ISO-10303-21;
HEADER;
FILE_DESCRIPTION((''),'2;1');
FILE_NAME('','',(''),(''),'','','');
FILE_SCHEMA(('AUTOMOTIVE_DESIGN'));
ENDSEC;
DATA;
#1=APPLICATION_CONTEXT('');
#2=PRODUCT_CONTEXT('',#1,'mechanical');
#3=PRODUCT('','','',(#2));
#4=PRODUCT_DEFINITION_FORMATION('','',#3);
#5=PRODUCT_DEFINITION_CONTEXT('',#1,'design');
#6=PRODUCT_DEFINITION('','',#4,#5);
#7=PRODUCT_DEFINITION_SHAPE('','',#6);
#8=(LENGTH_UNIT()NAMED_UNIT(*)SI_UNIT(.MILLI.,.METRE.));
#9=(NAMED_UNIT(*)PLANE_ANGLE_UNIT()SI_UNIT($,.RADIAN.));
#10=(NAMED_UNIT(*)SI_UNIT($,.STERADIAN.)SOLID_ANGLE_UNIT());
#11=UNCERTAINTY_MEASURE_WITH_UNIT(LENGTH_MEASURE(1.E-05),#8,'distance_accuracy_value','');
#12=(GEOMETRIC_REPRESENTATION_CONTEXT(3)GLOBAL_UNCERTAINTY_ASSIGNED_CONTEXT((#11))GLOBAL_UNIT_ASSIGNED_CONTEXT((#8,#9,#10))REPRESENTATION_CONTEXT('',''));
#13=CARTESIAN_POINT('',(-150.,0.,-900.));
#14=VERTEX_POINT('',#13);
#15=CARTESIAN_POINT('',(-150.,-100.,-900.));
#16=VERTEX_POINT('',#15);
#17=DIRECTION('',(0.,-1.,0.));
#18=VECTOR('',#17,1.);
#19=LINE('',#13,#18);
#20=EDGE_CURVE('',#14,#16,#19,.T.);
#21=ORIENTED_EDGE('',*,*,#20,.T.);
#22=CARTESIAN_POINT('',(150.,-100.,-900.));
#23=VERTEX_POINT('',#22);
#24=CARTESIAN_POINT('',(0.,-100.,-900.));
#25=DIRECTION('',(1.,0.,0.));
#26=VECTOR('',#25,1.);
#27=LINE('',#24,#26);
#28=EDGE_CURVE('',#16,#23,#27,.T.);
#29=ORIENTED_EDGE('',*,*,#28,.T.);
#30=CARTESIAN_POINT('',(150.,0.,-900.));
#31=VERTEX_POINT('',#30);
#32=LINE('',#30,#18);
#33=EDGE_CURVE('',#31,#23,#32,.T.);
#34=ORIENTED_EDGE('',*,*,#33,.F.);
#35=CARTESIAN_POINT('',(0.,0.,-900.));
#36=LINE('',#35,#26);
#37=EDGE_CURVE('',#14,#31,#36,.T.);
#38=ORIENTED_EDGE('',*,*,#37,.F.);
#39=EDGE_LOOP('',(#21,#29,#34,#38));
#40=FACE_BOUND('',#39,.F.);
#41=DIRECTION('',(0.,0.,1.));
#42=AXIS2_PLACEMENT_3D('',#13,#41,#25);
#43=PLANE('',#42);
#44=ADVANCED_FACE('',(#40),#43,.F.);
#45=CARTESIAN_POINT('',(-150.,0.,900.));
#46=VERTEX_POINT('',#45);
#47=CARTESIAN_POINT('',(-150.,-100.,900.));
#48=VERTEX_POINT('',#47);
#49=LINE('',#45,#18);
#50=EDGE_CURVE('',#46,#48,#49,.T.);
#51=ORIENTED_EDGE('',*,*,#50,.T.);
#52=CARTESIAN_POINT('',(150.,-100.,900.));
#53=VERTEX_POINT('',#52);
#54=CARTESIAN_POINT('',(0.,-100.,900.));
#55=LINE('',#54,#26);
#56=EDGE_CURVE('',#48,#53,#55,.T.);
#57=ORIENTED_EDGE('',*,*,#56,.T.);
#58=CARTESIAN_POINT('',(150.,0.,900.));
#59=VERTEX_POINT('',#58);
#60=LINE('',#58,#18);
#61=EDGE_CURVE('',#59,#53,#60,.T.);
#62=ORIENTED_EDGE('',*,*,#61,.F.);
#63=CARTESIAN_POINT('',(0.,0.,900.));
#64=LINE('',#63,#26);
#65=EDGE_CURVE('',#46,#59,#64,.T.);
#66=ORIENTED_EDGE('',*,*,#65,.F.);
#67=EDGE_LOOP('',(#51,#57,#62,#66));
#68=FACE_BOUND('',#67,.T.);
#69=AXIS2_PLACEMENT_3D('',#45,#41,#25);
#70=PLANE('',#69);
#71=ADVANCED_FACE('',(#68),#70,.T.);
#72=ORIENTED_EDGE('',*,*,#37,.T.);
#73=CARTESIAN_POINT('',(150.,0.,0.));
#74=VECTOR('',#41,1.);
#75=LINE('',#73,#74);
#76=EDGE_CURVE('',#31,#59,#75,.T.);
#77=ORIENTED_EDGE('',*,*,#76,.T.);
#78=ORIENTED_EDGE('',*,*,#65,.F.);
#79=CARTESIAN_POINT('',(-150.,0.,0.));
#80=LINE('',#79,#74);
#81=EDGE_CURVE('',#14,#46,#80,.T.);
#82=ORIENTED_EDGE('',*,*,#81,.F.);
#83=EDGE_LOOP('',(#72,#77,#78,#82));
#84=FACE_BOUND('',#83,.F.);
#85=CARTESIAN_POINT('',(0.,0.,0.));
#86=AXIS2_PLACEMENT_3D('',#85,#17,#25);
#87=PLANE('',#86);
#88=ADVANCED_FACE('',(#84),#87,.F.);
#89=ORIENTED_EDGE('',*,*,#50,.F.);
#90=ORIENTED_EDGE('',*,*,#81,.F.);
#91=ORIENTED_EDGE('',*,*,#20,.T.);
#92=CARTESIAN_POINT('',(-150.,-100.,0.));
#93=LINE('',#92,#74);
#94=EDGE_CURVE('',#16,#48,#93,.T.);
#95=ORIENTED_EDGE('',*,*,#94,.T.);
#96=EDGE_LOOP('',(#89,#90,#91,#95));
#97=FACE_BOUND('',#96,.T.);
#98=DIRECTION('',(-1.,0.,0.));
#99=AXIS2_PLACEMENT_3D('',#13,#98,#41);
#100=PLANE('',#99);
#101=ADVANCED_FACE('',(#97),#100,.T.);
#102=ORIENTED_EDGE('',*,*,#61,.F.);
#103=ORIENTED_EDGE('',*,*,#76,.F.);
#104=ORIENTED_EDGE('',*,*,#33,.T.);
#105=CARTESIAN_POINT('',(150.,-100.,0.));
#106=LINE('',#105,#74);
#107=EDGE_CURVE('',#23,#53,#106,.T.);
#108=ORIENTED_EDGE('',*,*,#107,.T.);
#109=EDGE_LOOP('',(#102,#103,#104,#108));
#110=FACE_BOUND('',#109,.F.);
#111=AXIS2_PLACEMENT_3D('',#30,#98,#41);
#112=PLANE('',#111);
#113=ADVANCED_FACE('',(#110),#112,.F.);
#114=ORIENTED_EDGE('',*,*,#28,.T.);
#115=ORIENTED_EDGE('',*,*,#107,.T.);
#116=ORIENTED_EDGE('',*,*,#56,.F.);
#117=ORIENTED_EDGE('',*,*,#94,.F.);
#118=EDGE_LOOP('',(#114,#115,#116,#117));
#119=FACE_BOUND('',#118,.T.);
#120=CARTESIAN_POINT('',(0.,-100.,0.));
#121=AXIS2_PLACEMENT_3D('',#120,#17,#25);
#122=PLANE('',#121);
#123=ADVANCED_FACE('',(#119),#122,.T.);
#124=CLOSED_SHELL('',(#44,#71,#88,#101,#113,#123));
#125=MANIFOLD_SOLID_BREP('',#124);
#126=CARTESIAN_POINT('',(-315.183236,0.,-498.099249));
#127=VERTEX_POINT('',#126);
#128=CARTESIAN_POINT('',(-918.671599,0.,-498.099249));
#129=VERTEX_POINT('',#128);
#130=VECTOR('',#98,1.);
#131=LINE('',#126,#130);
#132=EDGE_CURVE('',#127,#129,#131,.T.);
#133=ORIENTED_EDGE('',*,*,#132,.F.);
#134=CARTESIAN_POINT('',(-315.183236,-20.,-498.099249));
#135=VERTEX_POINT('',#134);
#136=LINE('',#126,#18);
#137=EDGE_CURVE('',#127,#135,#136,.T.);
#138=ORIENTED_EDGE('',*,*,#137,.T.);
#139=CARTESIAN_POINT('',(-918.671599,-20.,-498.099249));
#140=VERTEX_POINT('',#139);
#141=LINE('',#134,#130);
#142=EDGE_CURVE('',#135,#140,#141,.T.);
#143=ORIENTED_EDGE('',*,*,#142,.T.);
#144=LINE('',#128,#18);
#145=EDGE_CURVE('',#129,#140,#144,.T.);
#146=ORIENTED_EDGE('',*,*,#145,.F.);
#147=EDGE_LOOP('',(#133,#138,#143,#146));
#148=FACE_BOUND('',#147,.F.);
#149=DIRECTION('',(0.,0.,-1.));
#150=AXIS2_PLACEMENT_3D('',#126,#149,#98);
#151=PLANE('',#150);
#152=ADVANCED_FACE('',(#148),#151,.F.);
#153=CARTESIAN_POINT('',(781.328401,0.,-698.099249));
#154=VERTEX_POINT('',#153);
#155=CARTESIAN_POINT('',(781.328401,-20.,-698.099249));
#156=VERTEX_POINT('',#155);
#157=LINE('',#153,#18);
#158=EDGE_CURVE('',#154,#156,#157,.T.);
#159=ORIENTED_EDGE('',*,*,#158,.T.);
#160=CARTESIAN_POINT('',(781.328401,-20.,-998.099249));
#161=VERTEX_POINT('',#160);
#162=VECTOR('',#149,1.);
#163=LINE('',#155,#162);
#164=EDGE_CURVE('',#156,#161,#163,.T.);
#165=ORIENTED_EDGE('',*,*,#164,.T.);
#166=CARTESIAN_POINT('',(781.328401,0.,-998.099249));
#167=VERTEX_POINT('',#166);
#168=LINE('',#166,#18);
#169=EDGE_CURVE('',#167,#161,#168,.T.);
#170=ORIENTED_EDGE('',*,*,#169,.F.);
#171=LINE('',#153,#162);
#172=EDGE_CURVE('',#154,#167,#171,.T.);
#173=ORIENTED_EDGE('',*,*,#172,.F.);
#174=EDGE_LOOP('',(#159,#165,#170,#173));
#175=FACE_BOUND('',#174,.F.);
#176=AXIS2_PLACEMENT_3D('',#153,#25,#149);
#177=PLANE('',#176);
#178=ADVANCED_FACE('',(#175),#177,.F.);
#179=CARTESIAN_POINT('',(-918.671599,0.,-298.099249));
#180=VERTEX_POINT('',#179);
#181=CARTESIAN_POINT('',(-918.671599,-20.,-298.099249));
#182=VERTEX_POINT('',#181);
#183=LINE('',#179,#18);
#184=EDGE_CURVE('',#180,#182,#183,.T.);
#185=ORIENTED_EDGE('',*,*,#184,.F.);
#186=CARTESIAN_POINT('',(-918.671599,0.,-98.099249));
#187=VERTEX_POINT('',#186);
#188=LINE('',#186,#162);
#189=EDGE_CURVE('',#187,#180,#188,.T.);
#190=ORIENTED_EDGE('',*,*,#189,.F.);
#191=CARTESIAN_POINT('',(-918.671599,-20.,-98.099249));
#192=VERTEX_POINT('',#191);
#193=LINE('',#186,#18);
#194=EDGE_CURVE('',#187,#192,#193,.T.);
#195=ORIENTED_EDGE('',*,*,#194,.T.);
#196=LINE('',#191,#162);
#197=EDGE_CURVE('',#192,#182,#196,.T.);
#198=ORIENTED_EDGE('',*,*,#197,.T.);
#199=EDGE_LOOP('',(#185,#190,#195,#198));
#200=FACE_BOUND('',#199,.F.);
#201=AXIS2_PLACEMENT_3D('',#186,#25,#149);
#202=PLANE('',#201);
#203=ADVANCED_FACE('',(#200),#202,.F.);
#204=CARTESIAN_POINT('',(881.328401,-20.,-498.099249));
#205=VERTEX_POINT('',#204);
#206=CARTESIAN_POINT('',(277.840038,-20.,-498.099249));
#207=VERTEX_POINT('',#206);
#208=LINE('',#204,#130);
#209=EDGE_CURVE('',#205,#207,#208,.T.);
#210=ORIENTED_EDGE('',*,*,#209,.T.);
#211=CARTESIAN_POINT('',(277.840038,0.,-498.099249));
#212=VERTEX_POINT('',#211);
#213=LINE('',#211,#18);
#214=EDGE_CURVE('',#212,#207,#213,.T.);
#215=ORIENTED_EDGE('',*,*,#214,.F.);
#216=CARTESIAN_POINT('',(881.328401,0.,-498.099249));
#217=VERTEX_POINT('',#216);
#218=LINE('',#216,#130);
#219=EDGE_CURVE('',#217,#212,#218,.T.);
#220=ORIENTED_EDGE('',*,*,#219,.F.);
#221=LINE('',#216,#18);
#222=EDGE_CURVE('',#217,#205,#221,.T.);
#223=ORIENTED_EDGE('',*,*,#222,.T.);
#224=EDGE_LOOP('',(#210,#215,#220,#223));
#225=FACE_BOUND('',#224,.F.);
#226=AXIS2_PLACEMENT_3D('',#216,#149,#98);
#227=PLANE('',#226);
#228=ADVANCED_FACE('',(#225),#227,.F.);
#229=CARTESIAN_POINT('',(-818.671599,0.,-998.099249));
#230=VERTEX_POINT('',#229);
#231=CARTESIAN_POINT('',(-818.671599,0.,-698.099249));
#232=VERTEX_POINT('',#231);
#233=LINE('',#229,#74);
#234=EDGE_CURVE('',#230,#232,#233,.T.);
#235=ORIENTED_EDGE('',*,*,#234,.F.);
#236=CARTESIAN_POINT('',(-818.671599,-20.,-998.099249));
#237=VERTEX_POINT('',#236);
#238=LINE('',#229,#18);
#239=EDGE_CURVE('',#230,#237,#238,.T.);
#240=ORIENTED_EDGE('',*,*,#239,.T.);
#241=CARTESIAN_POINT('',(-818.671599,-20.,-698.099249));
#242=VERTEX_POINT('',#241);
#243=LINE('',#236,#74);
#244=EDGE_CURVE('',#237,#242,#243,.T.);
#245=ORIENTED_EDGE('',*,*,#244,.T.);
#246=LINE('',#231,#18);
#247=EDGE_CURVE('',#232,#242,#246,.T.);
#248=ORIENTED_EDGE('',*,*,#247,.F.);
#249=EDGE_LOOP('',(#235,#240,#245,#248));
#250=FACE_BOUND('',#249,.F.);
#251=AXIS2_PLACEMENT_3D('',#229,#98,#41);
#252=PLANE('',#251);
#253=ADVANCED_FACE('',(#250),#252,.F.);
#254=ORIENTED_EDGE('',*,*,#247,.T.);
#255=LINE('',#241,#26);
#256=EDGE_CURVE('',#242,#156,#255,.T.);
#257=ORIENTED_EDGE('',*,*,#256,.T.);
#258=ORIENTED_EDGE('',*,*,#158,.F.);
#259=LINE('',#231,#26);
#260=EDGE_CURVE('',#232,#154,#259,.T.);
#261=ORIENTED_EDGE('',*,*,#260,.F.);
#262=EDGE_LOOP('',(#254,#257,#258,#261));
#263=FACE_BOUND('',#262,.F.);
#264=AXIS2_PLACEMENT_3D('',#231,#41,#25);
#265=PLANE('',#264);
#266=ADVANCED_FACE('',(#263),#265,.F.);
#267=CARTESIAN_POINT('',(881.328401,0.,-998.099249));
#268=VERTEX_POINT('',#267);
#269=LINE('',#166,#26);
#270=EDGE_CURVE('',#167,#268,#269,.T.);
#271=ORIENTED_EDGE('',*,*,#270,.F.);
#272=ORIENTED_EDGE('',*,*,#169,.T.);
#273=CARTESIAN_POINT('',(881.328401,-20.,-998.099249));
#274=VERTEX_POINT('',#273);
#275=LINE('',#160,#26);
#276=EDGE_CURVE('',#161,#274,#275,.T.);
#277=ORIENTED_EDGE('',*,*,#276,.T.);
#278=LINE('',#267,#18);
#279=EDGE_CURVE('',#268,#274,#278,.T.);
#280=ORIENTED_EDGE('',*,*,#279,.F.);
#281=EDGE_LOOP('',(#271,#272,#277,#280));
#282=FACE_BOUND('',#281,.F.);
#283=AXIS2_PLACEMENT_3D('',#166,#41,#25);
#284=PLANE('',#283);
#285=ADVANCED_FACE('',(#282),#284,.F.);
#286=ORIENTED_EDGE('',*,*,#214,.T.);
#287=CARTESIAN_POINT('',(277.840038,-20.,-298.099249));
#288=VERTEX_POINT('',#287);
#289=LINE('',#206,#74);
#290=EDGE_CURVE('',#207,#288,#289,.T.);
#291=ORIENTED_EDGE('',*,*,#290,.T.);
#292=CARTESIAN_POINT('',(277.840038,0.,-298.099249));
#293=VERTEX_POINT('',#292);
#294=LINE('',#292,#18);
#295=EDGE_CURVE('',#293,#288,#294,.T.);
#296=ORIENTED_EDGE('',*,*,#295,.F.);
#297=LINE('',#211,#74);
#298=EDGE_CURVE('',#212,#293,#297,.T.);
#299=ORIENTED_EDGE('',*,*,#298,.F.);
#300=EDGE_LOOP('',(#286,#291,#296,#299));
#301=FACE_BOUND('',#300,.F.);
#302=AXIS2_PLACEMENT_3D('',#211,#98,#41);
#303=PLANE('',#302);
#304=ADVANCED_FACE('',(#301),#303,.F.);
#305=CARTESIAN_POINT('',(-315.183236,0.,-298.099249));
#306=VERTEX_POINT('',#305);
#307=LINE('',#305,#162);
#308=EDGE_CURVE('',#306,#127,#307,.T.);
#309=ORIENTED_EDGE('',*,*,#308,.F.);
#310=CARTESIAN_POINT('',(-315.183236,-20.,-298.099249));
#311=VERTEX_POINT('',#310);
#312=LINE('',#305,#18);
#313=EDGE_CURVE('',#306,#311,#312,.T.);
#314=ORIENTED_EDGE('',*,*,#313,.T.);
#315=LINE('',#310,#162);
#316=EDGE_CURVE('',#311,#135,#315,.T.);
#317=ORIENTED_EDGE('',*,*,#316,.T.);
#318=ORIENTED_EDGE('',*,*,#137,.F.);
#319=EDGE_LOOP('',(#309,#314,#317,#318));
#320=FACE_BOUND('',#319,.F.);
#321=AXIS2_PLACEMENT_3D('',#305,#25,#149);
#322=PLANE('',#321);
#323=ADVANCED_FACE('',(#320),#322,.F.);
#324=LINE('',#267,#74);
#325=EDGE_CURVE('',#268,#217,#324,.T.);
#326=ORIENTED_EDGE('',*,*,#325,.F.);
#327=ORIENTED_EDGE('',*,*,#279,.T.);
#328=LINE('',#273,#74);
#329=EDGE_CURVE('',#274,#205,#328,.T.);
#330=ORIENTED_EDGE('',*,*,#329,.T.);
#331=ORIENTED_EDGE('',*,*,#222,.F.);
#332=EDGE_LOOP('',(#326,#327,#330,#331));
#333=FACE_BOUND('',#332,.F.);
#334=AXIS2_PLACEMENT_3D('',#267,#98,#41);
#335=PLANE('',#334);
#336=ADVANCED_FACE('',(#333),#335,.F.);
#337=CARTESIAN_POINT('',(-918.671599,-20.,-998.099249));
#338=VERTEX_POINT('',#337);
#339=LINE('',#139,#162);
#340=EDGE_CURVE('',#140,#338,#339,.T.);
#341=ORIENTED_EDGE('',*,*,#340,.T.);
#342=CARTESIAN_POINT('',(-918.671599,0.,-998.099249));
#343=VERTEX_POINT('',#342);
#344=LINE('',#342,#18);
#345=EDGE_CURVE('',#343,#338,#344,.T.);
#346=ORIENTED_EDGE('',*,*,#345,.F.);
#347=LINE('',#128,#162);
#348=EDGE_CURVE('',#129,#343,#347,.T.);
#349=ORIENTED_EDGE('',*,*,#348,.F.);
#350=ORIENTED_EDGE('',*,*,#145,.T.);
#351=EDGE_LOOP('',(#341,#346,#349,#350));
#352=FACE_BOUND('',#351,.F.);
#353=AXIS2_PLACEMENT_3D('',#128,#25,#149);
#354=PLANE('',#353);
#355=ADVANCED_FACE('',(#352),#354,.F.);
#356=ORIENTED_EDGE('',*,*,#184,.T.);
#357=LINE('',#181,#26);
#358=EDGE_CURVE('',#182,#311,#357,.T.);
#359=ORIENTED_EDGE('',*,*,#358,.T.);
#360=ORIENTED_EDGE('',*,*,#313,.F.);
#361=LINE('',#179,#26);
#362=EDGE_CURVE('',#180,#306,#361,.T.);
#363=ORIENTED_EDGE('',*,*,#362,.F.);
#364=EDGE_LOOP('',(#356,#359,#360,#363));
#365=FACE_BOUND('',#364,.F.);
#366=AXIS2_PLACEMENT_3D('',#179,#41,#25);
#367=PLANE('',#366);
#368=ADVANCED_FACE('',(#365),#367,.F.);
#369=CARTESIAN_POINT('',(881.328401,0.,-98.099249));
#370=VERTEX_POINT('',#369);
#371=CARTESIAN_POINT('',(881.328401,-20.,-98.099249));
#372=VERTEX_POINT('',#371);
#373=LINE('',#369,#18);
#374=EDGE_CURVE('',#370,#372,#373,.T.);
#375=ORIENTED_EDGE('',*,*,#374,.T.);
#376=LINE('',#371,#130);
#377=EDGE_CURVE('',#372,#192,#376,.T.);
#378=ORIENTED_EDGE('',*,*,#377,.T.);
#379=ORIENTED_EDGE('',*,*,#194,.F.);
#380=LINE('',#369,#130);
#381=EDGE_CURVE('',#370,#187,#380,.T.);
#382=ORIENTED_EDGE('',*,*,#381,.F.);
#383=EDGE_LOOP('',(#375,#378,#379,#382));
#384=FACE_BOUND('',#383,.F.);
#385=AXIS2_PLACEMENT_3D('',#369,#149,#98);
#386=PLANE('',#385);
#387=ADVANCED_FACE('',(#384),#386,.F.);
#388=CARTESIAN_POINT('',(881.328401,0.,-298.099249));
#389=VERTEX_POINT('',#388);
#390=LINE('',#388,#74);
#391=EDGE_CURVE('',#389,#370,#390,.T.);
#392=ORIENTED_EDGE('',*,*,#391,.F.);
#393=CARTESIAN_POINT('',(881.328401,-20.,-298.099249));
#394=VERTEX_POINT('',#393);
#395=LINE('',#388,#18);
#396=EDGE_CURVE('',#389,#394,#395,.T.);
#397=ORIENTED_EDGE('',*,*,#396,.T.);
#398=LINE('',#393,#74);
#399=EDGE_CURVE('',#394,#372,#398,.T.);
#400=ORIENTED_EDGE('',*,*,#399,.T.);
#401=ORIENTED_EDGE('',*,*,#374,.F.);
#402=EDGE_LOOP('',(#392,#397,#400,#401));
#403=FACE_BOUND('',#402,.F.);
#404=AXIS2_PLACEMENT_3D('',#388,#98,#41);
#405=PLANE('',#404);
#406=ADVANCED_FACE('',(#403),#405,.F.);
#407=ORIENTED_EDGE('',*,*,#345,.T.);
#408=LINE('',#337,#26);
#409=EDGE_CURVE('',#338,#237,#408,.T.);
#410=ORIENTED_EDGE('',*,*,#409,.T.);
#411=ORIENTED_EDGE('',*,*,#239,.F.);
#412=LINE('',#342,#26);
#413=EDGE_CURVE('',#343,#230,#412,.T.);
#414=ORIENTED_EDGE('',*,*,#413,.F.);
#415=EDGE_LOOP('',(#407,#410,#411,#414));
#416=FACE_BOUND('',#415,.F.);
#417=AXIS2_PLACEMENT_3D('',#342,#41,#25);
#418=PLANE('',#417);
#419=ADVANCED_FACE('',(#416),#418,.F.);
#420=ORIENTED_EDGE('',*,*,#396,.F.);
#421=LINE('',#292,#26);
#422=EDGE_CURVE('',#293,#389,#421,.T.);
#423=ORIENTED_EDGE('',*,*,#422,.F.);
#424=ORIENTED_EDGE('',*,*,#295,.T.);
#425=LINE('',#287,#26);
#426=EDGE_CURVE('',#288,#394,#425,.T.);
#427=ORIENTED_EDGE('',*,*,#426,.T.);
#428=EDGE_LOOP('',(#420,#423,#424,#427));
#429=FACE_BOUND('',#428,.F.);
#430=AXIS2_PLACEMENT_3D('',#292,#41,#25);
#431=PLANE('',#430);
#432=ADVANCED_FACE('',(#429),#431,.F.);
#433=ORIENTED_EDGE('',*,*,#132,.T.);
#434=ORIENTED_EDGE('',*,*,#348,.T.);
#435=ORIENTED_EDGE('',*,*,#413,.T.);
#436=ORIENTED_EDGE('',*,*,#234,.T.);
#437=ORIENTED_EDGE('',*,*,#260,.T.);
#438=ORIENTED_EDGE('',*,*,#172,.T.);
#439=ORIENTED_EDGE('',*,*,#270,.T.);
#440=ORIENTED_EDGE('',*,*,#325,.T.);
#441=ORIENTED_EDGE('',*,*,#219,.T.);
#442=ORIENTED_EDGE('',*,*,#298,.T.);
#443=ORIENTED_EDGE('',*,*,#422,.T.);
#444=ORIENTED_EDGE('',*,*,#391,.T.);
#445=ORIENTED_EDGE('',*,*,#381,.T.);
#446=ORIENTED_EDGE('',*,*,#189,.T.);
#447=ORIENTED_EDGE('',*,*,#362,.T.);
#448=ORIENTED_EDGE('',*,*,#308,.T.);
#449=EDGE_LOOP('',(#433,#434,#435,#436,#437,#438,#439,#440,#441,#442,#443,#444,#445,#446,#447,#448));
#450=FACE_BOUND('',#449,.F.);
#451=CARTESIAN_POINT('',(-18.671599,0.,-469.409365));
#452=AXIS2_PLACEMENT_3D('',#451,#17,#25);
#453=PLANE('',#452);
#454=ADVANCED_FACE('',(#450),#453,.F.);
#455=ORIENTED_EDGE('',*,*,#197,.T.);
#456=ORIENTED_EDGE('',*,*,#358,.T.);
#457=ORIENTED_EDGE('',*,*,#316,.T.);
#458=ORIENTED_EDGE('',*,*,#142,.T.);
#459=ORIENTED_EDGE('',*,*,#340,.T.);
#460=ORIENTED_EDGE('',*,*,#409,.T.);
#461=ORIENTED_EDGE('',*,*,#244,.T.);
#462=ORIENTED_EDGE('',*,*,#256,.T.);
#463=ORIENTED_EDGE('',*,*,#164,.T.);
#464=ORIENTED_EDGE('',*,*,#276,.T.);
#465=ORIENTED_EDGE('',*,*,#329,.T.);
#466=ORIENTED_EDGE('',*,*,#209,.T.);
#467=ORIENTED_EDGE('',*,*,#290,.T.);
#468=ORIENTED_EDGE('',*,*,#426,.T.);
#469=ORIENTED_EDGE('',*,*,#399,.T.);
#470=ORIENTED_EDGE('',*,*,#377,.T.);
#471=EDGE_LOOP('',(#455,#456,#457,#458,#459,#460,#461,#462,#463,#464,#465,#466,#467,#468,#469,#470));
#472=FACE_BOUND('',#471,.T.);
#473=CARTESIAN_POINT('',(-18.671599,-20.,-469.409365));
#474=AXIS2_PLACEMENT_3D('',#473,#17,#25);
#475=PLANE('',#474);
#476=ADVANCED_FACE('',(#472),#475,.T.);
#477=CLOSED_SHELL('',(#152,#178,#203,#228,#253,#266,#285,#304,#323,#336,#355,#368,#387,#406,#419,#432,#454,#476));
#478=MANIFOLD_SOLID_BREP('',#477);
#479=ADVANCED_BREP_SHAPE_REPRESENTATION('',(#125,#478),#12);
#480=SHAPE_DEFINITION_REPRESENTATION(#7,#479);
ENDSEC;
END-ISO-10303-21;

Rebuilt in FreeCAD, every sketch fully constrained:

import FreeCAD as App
import Part
import Sketcher
Q = App.Units.Quantity


def add_polygon(sketch, points):
    """Adds a closed chain of lines whose ends are joined by coincident constraints."""
    first, n = sketch.GeometryCount, len(points)
    for a, b in zip(points, points[1:] + points[:1]):
        sketch.addGeometry(Part.LineSegment(App.Vector(*a, 0), App.Vector(*b, 0)), False)
    for i in range(n):
        sketch.addConstraint(Sketcher.Constraint("Coincident", first + i, 2, first + (i + 1) % n, 1))

doc = App.newDocument("Part")
body = doc.addObject("PartDesign::Body", "Body")

# Sketch on XZ plane
sketch1 = body.newObject("Sketcher::SketchObject", "Sketch")
sketch1.AttachmentSupport = (doc.getObject("XZ_Plane"), [""])
sketch1.MapMode = "FlatFace"
add_polygon(sketch1, [(-150, 900), (-150, -900), (150, -900), (150, 900)])  # lines 0-3
sketch1.addConstraint([
    Sketcher.Constraint("Vertical", 0),
    Sketcher.Constraint("Horizontal", 1),
    Sketcher.Constraint("Vertical", 2),
    Sketcher.Constraint("Horizontal", 3),
    Sketcher.Constraint("Symmetric", 0, 2, 2, 2, -1, 1),
    Sketcher.Constraint("DistanceX", 1, 1, 1, 2, Q("300 mm")),
    Sketcher.Constraint("DistanceY", 0, 2, 0, 1, Q("1800 mm")),
])
pad1 = body.newObject("PartDesign::Pad", "Pad")
pad1.Profile = sketch1
pad1.Length = 100
body2 = doc.addObject("PartDesign::Body", "Body001")

# Sketch on XZ plane
sketch2 = body2.newObject("Sketcher::SketchObject", "Sketch001")
sketch2.AttachmentSupport = (doc.getObject("XZ_Plane001"), [""])
sketch2.MapMode = "FlatFace"
add_polygon(sketch2, [(-919, -298), (-315, -298), (-315, -498), (-919, -498), (-919, -998), (-819, -998), (-819, -698), (781, -698), (781, -998), (881, -998), (881, -498), (278, -498), (278, -298), (881, -298), (881, -98), (-919, -98)])  # lines 0-15
sketch2.addConstraint([
    Sketcher.Constraint("Horizontal", 0),
    Sketcher.Constraint("Vertical", 1),
    Sketcher.Constraint("Horizontal", 2),
    Sketcher.Constraint("Vertical", 3),
    Sketcher.Constraint("Horizontal", 4),
    Sketcher.Constraint("Vertical", 5),
    Sketcher.Constraint("Horizontal", 6),
    Sketcher.Constraint("Vertical", 7),
    Sketcher.Constraint("Horizontal", 8),
    Sketcher.Constraint("Vertical", 9),
    Sketcher.Constraint("Horizontal", 10),
    Sketcher.Constraint("Vertical", 11),
    Sketcher.Constraint("Horizontal", 12),
    Sketcher.Constraint("Vertical", 13),
    Sketcher.Constraint("Horizontal", 14),
    Sketcher.Constraint("Vertical", 15),
    Sketcher.Constraint("Horizontal", 4, 2, 7, 2),
    Sketcher.Constraint("Horizontal", 2, 2, 9, 2),
    Sketcher.Constraint("Horizontal", 0, 2, 11, 2),
    Sketcher.Constraint("Vertical", 9, 2, 12, 2),
    Sketcher.Constraint("Vertical", 3, 2, 14, 2),
    Sketcher.Constraint("Equal", 4, 8),
    Sketcher.Constraint("Equal", 2, 10),
    Sketcher.Constraint("Equal", 11, 13),
    Sketcher.Constraint("DistanceX", 4, 1, 4, 2, Q("100 mm")),
    Sketcher.Constraint("DistanceX", 6, 1, 6, 2, Q("1600 mm")),
    Sketcher.Constraint("DistanceY", 1, 2, 1, 1, Q("200 mm")),
    Sketcher.Constraint("DistanceY", 3, 2, 3, 1, Q("500 mm")),
    Sketcher.Constraint("DistanceY", 5, 1, 5, 2, Q("300 mm")),
    Sketcher.Constraint("DistanceX", 2, 2, -1, 1, Q("918.671599 mm")),
    Sketcher.Constraint("DistanceX", 0, 1, 0, 2, Q("603.488363 mm")),
    Sketcher.Constraint("DistanceY", 0, 2, -1, 1, Q("298.099249 mm")),
])
pad2 = body2.newObject("PartDesign::Pad", "Pad001")
pad2.Profile = sketch2
pad2.Length = 20

doc.recompute()
